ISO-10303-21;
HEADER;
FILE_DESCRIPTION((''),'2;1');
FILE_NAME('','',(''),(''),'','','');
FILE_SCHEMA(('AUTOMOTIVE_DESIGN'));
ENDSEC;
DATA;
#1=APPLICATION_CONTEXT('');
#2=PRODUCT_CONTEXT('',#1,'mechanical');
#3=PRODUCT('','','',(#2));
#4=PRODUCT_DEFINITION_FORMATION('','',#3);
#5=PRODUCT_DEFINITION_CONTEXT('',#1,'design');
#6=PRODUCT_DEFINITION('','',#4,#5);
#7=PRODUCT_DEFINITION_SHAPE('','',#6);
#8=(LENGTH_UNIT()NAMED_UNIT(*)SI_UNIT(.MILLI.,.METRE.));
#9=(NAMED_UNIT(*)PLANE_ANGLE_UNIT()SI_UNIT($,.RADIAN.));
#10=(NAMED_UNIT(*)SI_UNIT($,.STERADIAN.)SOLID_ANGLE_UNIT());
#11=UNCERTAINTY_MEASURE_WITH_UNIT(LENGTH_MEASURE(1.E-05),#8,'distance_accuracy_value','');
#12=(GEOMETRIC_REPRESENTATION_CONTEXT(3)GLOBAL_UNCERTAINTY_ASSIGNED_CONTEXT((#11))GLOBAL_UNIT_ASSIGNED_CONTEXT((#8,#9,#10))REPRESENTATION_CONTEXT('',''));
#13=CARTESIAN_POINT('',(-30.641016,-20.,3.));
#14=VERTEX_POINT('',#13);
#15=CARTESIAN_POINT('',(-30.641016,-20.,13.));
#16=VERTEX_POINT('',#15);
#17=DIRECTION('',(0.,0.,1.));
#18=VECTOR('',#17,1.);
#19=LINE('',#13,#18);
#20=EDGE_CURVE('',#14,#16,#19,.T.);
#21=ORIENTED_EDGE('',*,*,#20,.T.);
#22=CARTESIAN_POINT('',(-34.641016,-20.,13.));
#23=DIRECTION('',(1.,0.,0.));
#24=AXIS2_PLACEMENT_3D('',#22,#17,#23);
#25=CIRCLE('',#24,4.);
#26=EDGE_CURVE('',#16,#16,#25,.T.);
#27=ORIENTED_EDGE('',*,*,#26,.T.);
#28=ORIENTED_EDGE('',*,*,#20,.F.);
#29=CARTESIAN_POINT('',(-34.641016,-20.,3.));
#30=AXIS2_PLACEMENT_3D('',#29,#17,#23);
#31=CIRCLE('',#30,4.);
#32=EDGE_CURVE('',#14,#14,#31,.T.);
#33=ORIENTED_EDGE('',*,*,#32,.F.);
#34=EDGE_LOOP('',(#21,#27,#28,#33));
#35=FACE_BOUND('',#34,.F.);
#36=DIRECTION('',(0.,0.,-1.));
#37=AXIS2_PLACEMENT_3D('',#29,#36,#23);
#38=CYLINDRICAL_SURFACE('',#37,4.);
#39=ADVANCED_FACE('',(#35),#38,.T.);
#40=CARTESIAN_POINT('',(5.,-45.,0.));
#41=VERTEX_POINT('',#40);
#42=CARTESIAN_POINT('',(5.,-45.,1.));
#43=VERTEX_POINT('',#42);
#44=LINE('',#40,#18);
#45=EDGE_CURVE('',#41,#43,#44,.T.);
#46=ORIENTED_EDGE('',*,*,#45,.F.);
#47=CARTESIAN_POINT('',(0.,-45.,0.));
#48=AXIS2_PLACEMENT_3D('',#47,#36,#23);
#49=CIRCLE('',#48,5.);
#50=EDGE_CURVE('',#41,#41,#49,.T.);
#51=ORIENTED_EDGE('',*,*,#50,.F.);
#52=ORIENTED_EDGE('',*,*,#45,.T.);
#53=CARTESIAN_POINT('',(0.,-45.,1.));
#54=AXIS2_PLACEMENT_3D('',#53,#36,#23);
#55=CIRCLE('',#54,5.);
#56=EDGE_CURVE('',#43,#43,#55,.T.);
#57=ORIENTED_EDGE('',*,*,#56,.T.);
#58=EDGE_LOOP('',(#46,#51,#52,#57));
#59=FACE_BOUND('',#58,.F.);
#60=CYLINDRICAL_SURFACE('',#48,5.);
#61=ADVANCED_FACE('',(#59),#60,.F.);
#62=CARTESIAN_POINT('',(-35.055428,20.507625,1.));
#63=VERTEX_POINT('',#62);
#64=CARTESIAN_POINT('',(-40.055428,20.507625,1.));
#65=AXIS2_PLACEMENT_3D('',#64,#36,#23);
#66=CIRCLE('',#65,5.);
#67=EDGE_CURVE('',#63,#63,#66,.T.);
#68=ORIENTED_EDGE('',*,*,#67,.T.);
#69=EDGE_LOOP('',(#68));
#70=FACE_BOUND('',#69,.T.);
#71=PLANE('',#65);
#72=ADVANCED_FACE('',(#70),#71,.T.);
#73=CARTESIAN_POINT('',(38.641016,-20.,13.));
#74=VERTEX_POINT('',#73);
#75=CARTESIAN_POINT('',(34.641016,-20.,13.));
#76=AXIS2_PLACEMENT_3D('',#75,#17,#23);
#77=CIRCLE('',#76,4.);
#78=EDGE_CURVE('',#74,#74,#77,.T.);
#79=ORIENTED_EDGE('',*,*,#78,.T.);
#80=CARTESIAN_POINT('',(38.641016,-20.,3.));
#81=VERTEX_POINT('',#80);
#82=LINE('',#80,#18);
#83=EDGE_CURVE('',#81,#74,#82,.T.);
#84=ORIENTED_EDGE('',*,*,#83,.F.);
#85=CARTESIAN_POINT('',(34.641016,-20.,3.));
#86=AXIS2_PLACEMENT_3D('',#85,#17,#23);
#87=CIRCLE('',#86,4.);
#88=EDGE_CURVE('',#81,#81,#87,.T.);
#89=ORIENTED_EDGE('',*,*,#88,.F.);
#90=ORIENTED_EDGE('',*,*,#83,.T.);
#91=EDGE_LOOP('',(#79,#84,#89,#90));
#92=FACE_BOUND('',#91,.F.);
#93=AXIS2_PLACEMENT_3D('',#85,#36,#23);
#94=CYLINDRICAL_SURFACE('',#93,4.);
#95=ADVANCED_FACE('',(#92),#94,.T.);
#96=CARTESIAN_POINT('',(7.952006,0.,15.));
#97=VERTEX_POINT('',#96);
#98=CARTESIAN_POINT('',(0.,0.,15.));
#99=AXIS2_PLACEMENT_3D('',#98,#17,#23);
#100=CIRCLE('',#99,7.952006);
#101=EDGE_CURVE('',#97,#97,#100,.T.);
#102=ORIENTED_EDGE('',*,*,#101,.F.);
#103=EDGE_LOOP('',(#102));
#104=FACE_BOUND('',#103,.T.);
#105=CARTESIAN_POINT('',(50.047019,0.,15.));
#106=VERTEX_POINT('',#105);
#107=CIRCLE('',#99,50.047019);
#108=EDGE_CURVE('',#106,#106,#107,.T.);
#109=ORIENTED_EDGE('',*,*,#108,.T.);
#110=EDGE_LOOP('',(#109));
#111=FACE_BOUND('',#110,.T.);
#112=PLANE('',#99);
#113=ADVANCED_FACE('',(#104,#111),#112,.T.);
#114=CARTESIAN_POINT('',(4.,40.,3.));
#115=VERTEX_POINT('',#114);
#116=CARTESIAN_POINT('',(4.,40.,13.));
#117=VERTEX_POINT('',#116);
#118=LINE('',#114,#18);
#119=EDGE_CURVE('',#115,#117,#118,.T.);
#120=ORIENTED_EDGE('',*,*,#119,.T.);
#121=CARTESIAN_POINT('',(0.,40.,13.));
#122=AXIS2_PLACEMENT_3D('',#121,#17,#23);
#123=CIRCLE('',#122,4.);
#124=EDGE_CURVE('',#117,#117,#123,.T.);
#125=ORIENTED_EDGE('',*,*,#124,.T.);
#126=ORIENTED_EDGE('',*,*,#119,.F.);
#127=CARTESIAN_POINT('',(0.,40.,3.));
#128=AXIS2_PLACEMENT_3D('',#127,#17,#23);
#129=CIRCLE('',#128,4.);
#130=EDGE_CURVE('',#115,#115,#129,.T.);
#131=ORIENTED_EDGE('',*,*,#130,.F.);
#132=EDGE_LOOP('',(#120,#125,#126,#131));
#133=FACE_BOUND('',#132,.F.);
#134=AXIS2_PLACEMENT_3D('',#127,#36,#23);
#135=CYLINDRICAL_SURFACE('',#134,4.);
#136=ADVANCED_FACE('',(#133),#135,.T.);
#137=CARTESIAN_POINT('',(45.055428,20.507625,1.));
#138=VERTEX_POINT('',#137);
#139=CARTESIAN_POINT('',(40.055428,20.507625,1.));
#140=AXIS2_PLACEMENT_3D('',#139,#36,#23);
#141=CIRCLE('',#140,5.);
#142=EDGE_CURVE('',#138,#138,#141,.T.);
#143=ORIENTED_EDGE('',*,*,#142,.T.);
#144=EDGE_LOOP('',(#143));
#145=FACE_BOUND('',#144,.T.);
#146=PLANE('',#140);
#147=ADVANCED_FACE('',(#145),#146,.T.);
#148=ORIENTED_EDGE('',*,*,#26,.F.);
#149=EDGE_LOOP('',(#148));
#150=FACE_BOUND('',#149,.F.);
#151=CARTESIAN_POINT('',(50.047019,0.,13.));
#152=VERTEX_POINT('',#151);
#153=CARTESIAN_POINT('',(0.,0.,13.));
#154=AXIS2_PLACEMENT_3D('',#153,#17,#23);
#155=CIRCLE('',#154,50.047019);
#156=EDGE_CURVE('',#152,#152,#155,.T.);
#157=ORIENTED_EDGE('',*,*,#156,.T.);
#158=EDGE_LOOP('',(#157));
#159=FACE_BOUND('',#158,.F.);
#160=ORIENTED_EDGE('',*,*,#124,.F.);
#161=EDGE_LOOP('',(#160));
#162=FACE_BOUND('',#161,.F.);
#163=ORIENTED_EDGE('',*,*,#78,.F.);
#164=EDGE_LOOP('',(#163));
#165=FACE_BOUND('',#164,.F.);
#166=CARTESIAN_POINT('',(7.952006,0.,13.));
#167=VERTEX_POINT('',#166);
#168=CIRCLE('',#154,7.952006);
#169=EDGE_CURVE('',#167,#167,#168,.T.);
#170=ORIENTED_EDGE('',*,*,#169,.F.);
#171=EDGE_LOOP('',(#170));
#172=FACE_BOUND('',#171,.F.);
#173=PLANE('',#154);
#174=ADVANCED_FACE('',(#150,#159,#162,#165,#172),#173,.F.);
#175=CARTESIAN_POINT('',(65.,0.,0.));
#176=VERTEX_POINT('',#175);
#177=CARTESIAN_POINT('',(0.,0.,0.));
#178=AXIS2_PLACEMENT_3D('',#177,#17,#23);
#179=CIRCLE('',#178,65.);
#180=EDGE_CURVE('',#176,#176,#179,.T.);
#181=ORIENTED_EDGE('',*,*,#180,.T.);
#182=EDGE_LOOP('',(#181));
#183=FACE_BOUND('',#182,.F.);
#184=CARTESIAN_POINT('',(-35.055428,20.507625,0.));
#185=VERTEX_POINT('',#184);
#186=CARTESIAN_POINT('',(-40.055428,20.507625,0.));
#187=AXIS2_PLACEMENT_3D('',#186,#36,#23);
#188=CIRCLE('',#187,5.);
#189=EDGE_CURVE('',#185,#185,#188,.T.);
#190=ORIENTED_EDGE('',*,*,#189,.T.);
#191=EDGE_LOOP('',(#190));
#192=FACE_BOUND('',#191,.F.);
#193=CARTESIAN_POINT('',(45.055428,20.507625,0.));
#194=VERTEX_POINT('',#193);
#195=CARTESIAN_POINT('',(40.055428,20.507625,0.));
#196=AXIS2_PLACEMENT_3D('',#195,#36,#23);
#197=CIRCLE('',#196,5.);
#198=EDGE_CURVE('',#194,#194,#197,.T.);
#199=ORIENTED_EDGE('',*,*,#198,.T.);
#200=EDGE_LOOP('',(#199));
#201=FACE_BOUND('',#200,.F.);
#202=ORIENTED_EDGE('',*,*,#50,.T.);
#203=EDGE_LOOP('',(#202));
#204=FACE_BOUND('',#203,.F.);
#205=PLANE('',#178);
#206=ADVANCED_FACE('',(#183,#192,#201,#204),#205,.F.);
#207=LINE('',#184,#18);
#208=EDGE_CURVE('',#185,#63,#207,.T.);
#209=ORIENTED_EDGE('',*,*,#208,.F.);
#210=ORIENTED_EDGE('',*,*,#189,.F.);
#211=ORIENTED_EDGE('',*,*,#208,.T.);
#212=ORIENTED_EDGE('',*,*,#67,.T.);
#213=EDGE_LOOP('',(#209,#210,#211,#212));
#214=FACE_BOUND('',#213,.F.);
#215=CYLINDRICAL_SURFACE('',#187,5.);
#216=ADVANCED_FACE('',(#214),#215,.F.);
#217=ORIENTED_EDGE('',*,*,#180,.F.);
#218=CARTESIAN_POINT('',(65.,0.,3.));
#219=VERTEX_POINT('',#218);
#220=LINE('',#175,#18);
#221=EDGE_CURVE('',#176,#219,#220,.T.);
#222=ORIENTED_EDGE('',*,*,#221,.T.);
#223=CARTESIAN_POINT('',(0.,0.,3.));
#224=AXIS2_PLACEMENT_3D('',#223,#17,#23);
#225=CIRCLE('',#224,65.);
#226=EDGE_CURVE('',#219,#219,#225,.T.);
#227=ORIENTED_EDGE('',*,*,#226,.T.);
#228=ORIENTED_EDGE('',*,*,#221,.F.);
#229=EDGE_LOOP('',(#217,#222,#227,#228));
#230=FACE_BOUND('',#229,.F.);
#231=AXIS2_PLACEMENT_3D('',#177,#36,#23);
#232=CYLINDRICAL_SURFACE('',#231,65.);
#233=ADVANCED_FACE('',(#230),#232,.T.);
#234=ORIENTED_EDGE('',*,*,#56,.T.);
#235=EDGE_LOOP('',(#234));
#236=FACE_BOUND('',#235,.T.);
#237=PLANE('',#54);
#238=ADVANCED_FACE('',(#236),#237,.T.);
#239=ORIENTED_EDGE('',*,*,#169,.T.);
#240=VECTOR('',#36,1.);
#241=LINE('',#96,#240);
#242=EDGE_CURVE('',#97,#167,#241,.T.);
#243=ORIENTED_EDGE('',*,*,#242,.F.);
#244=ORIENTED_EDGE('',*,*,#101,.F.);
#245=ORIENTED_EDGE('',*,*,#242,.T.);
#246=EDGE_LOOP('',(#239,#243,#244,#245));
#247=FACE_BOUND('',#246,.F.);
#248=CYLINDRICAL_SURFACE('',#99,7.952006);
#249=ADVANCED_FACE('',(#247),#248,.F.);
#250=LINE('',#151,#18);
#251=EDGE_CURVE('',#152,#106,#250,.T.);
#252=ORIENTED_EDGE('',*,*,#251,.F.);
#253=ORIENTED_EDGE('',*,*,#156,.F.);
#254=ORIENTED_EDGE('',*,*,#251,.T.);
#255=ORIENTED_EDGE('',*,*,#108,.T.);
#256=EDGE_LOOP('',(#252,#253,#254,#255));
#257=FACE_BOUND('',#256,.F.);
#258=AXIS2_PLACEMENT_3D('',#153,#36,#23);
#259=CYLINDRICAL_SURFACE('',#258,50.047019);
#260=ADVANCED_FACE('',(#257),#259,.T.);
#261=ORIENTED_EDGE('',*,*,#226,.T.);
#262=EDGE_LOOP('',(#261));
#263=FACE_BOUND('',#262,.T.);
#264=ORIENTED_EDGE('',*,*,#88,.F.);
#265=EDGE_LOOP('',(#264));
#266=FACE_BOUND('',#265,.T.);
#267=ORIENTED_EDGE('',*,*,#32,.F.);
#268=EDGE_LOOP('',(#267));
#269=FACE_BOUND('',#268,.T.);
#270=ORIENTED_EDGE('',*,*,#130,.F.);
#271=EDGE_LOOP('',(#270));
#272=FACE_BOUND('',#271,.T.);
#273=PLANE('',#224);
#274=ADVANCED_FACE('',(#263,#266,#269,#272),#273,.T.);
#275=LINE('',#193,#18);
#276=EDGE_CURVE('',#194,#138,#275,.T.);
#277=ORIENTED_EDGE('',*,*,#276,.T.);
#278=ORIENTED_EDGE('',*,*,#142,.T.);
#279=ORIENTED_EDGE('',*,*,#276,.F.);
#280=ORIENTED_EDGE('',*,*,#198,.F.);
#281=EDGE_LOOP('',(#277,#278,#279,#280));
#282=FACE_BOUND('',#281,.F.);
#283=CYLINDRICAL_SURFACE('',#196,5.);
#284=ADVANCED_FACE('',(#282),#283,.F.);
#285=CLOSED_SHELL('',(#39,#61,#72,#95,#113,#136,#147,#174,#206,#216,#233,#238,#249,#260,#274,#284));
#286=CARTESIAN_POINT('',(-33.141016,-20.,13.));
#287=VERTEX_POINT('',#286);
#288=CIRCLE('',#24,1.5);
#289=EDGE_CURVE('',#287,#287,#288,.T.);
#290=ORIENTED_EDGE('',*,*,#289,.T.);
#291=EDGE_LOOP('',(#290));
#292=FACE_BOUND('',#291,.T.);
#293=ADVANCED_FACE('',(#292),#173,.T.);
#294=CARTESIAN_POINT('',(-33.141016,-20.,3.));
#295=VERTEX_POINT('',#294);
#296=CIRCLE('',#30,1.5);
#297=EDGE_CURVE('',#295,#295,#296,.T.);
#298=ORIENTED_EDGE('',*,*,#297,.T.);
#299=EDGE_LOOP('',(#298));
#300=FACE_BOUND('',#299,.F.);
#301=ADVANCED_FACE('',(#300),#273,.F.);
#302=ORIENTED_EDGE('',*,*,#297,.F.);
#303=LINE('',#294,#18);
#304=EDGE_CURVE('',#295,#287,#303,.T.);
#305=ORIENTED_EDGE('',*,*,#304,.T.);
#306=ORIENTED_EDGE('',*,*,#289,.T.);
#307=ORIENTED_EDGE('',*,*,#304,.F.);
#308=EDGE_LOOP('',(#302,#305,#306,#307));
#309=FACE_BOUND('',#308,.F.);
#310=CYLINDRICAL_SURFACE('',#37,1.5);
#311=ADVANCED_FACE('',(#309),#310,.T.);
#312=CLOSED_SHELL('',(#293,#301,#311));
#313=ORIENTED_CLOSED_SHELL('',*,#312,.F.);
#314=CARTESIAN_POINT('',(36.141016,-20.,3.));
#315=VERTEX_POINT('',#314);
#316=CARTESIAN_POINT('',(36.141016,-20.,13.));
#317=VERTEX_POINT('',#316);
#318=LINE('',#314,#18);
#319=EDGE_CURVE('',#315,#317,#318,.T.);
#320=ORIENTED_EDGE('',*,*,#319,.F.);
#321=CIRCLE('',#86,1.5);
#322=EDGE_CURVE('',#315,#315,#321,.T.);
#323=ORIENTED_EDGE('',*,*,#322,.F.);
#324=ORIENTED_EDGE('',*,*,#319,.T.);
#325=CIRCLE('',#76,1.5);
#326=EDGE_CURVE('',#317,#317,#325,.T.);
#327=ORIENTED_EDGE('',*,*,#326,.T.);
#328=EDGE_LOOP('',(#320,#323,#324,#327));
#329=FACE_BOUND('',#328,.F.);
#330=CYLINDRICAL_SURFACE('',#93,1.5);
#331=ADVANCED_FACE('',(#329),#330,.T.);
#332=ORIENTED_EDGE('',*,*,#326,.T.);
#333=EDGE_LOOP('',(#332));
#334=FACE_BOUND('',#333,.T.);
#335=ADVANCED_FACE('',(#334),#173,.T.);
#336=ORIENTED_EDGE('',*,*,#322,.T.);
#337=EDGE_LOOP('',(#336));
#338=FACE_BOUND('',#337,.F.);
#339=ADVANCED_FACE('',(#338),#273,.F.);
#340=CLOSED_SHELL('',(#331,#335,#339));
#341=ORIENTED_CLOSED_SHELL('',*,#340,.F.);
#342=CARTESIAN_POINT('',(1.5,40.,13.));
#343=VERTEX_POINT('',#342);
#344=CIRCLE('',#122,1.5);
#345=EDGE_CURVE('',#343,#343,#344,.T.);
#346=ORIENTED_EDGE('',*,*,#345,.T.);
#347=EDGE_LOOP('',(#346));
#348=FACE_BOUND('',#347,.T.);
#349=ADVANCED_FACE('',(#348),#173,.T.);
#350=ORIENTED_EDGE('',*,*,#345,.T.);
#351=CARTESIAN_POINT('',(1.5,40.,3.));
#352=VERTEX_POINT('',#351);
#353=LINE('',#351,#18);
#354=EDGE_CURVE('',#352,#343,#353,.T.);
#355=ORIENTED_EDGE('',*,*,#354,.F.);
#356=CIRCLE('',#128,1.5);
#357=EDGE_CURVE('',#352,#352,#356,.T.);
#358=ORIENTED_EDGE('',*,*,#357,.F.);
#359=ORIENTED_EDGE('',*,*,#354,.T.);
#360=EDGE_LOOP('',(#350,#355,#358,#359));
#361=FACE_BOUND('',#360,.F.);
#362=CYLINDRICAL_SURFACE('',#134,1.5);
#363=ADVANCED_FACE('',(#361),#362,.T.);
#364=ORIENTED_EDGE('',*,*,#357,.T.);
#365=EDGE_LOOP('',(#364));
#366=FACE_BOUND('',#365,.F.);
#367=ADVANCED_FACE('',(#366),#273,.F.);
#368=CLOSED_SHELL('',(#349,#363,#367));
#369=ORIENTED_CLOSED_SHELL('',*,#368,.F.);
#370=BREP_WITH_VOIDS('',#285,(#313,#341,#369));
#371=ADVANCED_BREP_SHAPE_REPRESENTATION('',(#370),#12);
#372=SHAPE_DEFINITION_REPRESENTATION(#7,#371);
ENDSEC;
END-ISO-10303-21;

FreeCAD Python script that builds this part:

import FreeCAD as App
import Part
import Sketcher

V = App.Vector

doc = App.newDocument("Part")
body = doc.addObject("PartDesign::Body", "Body")

# Sketch on XY plane
sketch1 = doc.addObject("Sketcher::SketchObject", "Sketch")
body.addObject(sketch1)
sketch1.AttachmentSupport = (doc.XY_Plane, [""])
sketch1.MapMode = "FlatFace"
sketch1.addGeometry(Part.Circle(V(0, 0, 0), V(0, 0, 1), 65), False)
sketch1.addConstraint(Sketcher.Constraint("Coincident", 0, 3, -1, 1))
sketch1.addConstraint(Sketcher.Constraint("Diameter", 0, 130.0))
pad1 = doc.addObject("PartDesign::Pad", "Pad")
body.addObject(pad1)
pad1.Profile = sketch1
pad1.Length = 3

# Sketch on XY plane
sketch2 = doc.addObject("Sketcher::SketchObject", "Sketch001")
body.addObject(sketch2)
sketch2.AttachmentSupport = (doc.XY_Plane, [""])
sketch2.MapMode = "FlatFace"
sketch2.addGeometry(Part.Circle(V(0, -45, 0), V(0, 0, 1), 5), False)
sketch2.addGeometry(Part.Circle(V(40, 21, 0), V(0, 0, 1), 5), False)
sketch2.addGeometry(Part.Circle(V(-40, 21, 0), V(0, 0, 1), 5), False)
sketch2.addConstraint(Sketcher.Constraint("Equal", 0, 1))
sketch2.addConstraint(Sketcher.Constraint("Equal", 1, 2))
sketch2.addConstraint(Sketcher.Constraint("Symmetric", 1, 3, 2, 3, -2))
sketch2.addConstraint(Sketcher.Constraint("PointOnObject", 0, 3, -2))
sketch2.addConstraint(Sketcher.Constraint("Diameter", 0, 10.0))
sketch2.addConstraint(Sketcher.Constraint("DistanceY", 0, 3, -1, 1, 45.0))
sketch2.addConstraint(Sketcher.Constraint("DistanceX", -1, 1, 1, 3, 40.055428))
sketch2.addConstraint(Sketcher.Constraint("DistanceY", -1, 1, 1, 3, 20.507625))
pocket1 = doc.addObject("PartDesign::Pocket", "Pocket")
body.addObject(pocket1)
pocket1.Profile = sketch2
pocket1.Length = 1
pocket1.Reversed = True

# Sketch on XY plane
sketch3 = doc.addObject("Sketcher::SketchObject", "Sketch002")
body.addObject(sketch3)
sketch3.AttachmentSupport = (doc.XY_Plane, [""])
sketch3.MapMode = "FlatFace"
sketch3.AttachmentOffset = App.Placement(V(0, 0, 3), App.Rotation())
sketch3.addGeometry(Part.Circle(V(0, 40, 0), V(0, 0, 1), 4), False)
sketch3.addGeometry(Part.Circle(V(0, 40, 0), V(0, 0, 1), 1.5), False)
sketch3.addGeometry(Part.Circle(V(-34.6, -20, 0), V(0, 0, 1), 4), False)
sketch3.addGeometry(Part.Circle(V(-34.6, -20, 0), V(0, 0, 1), 1.5), False)
sketch3.addGeometry(Part.Circle(V(34.6, -20, 0), V(0, 0, 1), 4), False)
sketch3.addGeometry(Part.Circle(V(34.6, -20, 0), V(0, 0, 1), 1.5), False)
sketch3.addConstraint(Sketcher.Constraint("Coincident", 1, 3, 0, 3))
sketch3.addConstraint(Sketcher.Constraint("Coincident", 3, 3, 2, 3))
sketch3.addConstraint(Sketcher.Constraint("Coincident", 5, 3, 4, 3))
sketch3.addConstraint(Sketcher.Constraint("Equal", 0, 2))
sketch3.addConstraint(Sketcher.Constraint("Equal", 1, 3))
sketch3.addConstraint(Sketcher.Constraint("Equal", 2, 4))
sketch3.addConstraint(Sketcher.Constraint("Equal", 3, 5))
sketch3.addConstraint(Sketcher.Constraint("Symmetric", 2, 3, 4, 3, -2))
sketch3.addConstraint(Sketcher.Constraint("PointOnObject", 0, 3, -2))
sketch3.addConstraint(Sketcher.Constraint("Diameter", 0, 8.0))
sketch3.addConstraint(Sketcher.Constraint("Diameter", 1, 3.0))
sketch3.addConstraint(Sketcher.Constraint("DistanceY", -1, 1, 0, 3, 40.0))
sketch3.addConstraint(Sketcher.Constraint("DistanceY", 2, 3, -1, 1, 20.0))
sketch3.addConstraint(Sketcher.Constraint("DistanceX", 2, 3, 4, 3, 69.282032))
pad2 = doc.addObject("PartDesign::Pad", "Pad001")
body.addObject(pad2)
pad2.Profile = sketch3
pad2.Length = 10

# Sketch on XY plane
sketch4 = doc.addObject("Sketcher::SketchObject", "Sketch003")
body.addObject(sketch4)
sketch4.AttachmentSupport = (doc.XY_Plane, [""])
sketch4.MapMode = "FlatFace"
sketch4.AttachmentOffset = App.Placement(V(0, 0, 13), App.Rotation())
sketch4.addGeometry(Part.Circle(V(0, 0, 0), V(0, 0, 1), 50), False)
sketch4.addConstraint(Sketcher.Constraint("Coincident", 0, 3, -1, 1))
sketch4.addConstraint(Sketcher.Constraint("Diameter", 0, 100.094038))
pad3 = doc.addObject("PartDesign::Pad", "Pad002")
body.addObject(pad3)
pad3.Profile = sketch4
pad3.Length = 2

# Sketch on XY plane
sketch5 = doc.addObject("Sketcher::SketchObject", "Sketch004")
body.addObject(sketch5)
sketch5.AttachmentSupport = (doc.XY_Plane, [""])
sketch5.MapMode = "FlatFace"
sketch5.AttachmentOffset = App.Placement(V(0, 0, 15), App.Rotation())
sketch5.addGeometry(Part.Circle(V(0, 0, 0), V(0, 0, 1), 8), False)
sketch5.addConstraint(Sketcher.Constraint("Coincident", 0, 3, -1, 1))
sketch5.addConstraint(Sketcher.Constraint("Diameter", 0, 15.904012))
pocket2 = doc.addObject("PartDesign::Pocket", "Pocket001")
body.addObject(pocket2)
pocket2.Profile = sketch5
pocket2.Length = 5

doc.recompute()
